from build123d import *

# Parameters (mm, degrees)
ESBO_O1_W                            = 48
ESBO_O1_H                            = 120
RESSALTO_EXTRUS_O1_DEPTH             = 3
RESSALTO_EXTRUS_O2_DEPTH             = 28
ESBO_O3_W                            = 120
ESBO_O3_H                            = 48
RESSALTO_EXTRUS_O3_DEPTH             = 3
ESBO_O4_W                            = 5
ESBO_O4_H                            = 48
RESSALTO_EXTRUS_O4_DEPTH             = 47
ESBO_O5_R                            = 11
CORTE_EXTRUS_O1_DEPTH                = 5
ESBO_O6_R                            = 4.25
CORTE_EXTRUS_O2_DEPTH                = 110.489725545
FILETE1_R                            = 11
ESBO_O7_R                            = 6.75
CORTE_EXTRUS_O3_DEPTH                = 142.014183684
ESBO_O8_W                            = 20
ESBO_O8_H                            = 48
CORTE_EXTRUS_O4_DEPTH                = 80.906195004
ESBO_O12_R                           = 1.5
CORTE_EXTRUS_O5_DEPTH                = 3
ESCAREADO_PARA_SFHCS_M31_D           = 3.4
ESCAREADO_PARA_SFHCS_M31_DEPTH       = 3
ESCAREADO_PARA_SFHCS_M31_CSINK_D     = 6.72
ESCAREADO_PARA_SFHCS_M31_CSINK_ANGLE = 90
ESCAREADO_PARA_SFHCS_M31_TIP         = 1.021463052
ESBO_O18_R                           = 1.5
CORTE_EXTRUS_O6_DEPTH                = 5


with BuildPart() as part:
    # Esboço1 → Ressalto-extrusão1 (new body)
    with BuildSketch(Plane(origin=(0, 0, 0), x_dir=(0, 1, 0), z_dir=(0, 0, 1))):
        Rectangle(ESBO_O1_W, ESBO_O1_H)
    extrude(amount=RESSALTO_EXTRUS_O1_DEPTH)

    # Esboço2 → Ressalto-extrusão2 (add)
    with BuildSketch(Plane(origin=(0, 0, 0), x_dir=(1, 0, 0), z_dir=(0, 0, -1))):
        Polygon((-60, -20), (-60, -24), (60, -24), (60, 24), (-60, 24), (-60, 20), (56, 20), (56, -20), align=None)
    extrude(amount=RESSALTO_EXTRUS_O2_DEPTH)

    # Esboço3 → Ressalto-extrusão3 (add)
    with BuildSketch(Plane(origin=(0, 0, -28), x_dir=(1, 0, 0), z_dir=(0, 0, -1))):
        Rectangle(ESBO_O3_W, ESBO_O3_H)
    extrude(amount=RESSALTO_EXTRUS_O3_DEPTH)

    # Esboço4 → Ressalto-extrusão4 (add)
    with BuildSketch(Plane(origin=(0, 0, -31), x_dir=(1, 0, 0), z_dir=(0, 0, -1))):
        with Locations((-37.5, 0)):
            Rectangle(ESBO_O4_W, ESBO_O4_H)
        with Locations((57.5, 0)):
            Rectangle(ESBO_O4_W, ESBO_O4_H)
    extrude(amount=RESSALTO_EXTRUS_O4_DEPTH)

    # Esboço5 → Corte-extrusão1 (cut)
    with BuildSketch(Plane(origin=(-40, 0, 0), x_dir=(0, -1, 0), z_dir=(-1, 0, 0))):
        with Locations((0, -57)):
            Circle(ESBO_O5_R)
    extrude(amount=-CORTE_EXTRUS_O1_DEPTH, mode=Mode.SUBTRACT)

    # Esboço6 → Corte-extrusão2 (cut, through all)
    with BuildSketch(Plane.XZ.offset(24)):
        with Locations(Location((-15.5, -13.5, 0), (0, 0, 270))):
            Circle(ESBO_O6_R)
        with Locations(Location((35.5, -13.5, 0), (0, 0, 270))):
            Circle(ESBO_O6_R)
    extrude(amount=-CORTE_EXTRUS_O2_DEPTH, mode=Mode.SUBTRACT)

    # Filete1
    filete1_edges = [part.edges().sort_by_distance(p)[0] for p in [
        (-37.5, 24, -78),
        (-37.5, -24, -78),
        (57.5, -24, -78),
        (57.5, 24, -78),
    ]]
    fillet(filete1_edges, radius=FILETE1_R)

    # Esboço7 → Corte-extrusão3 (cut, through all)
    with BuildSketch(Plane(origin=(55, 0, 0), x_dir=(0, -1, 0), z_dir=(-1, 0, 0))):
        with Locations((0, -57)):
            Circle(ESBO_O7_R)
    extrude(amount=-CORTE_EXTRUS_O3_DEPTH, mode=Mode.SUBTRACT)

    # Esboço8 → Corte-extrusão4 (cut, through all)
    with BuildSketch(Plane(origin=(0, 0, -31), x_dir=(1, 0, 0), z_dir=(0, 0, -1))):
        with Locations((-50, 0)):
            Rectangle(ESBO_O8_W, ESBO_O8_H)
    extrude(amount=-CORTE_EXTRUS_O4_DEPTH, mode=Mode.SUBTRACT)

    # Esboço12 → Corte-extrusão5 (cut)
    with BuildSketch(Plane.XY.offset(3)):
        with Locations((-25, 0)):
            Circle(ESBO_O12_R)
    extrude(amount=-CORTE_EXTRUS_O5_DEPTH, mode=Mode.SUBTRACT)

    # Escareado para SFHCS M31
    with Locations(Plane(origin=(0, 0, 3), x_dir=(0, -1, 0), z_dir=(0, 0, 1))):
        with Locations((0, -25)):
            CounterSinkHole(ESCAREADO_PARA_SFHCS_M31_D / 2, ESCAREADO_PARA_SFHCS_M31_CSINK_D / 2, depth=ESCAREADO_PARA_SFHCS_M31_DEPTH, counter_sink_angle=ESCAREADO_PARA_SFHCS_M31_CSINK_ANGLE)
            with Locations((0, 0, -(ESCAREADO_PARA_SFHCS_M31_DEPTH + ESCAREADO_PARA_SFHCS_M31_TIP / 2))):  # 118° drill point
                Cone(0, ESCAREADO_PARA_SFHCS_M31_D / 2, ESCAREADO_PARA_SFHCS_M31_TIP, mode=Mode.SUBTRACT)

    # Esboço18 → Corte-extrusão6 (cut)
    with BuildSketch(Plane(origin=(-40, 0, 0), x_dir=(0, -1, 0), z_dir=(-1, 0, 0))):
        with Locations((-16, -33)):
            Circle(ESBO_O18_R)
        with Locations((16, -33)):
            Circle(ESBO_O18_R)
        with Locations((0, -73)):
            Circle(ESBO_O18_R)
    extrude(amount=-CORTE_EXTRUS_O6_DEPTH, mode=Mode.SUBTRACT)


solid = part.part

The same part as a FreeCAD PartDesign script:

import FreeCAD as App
import Part
import Sketcher
Q = App.Units.Quantity


def edges_at(feature, points):
    """Names of the edges that pass closest to the given points."""
    edges = feature.Shape.Edges
    near = lambda p: min(range(len(edges)), key=lambda i: edges[i].distToShape(Part.Vertex(*p))[0])
    return sorted({f"Edge{near(p) + 1}" for p in points})


def add_polygon(sketch, points):
    """Adds a closed chain of lines whose ends are joined by coincident constraints."""
    first, n = sketch.GeometryCount, len(points)
    for a, b in zip(points, points[1:] + points[:1]):
        sketch.addGeometry(Part.LineSegment(App.Vector(*a, 0), App.Vector(*b, 0)), False)
    for i in range(n):
        sketch.addConstraint(Sketcher.Constraint("Coincident", first + i, 2, first + (i + 1) % n, 1))

doc = App.newDocument("Part")
body = doc.addObject("PartDesign::Body", "Body")

sketch1 = body.newObject("Sketcher::SketchObject", "Sketch")
sketch1.AttachmentSupport = (doc.getObject("XY_Plane"), [""])
sketch1.MapMode = "FlatFace"
add_polygon(sketch1, [(-60, -24), (60, -24), (60, 24), (-60, 24)])
sketch1.addConstraint([
    Sketcher.Constraint("Horizontal", 0),
    Sketcher.Constraint("Vertical", 1),
    Sketcher.Constraint("Horizontal", 2),
    Sketcher.Constraint("Vertical", 3),
    Sketcher.Constraint("Symmetric", 0, 2, 2, 2, -1, 1),
    Sketcher.Constraint("DistanceX", 0, 1, 0, 2, Q("120 mm")),
    Sketcher.Constraint("DistanceY", 1, 1, 1, 2, Q("48 mm")),
])
pad1 = body.newObject("PartDesign::Pad", "Pad")
pad1.Profile = sketch1
pad1.Length = 3

sketch2 = body.newObject("Sketcher::SketchObject", "Sketch001")
sketch2.AttachmentSupport = (doc.getObject("XY_Plane"), [""])
sketch2.MapMode = "FlatFace"
add_polygon(sketch2, [(-60, 20), (-60, 24), (60, 24), (60, -24), (-60, -24), (-60, -20), (56, -20), (56, 20)])
sketch2.addConstraint([
    Sketcher.Constraint("Vertical", 0),
    Sketcher.Constraint("Horizontal", 1),
    Sketcher.Constraint("Vertical", 2),
    Sketcher.Constraint("Horizontal", 3),
    Sketcher.Constraint("Vertical", 4),
    Sketcher.Constraint("Horizontal", 5),
    Sketcher.Constraint("Vertical", 6),
    Sketcher.Constraint("Horizontal", 7),
    Sketcher.Constraint("Symmetric", 0, 2, 2, 2, -1, 1),
    Sketcher.Constraint("Symmetric", 4, 2, 7, 2, -1),
    Sketcher.Constraint("DistanceX", 1, 1, 1, 2, Q("120 mm")),
    Sketcher.Constraint("DistanceX", 5, 1, 5, 2, Q("116 mm")),
    Sketcher.Constraint("DistanceY", 0, 1, 0, 2, Q("4 mm")),
    Sketcher.Constraint("DistanceY", 2, 2, 2, 1, Q("48 mm")),
])
pad2 = body.newObject("PartDesign::Pad", "Pad001")
pad2.Profile = sketch2
pad2.Length = 28
pad2.Reversed = True

sketch3 = body.newObject("Sketcher::SketchObject", "Sketch002")
sketch3.AttachmentSupport = (doc.getObject("XY_Plane"), [""])
sketch3.MapMode = "FlatFace"
sketch3.AttachmentOffset = App.Placement(App.Vector(0, 0, -28), App.Rotation())
add_polygon(sketch3, [(-60, -24), (-60, 24), (60, 24), (60, -24)])
sketch3.addConstraint([
    Sketcher.Constraint("Vertical", 0),
    Sketcher.Constraint("Horizontal", 1),
    Sketcher.Constraint("Vertical", 2),
    Sketcher.Constraint("Horizontal", 3),
    Sketcher.Constraint("Symmetric", 0, 2, 2, 2, -1, 1),
    Sketcher.Constraint("DistanceX", 1, 1, 1, 2, Q("120 mm")),
    Sketcher.Constraint("DistanceY", 0, 1, 0, 2, Q("48 mm")),
])
pad3 = body.newObject("PartDesign::Pad", "Pad002")
pad3.Profile = sketch3
pad3.Length = 3
pad3.Reversed = True

sketch4 = body.newObject("Sketcher::SketchObject", "Sketch003")
sketch4.AttachmentSupport = (doc.getObject("XY_Plane"), [""])
sketch4.MapMode = "FlatFace"
sketch4.AttachmentOffset = App.Placement(App.Vector(0, 0, -31), App.Rotation())
add_polygon(sketch4, [(-40, -24), (-40, 24), (-35, 24), (-35, -24)])
add_polygon(sketch4, [(55, -24), (55, 24), (60, 24), (60, -24)])
sketch4.addConstraint([
    Sketcher.Constraint("Vertical", 0),
    Sketcher.Constraint("Horizontal", 1),
    Sketcher.Constraint("Vertical", 2),
    Sketcher.Constraint("Horizontal", 3),
    Sketcher.Constraint("Vertical", 4),
    Sketcher.Constraint("Horizontal", 5),
    Sketcher.Constraint("Vertical", 6),
    Sketcher.Constraint("Horizontal", 7),
    Sketcher.Constraint("Horizontal", 1, 2, 4, 2),
    Sketcher.Constraint("Horizontal", 3, 2, 6, 2),
    Sketcher.Constraint("Equal", 3, 5),
    Sketcher.Constraint("DistanceX", 1, 1, 1, 2, Q("5 mm")),
    Sketcher.Constraint("DistanceY", 0, 1, 0, 2, Q("48 mm")),
    Sketcher.Constraint("DistanceX", 0, 2, -1, 1, Q("40 mm")),
    Sketcher.Constraint("DistanceY", -1, 1, 0, 2, Q("24 mm")),
    Sketcher.Constraint("DistanceX", -1, 1, 4, 2, Q("55 mm")),
])
pad4 = body.newObject("PartDesign::Pad", "Pad003")
pad4.Profile = sketch4
pad4.Length = 47
pad4.Reversed = True

sketch5 = body.newObject("Sketcher::SketchObject", "Sketch004")
sketch5.AttachmentSupport = (doc.getObject("YZ_Plane"), [""])
sketch5.MapMode = "FlatFace"
sketch5.AttachmentOffset = App.Placement(App.Vector(0, 0, -40), App.Rotation())
sketch5.addGeometry(Part.Circle(App.Vector(0, -57, 0), App.Vector(0, 0, 1), 11), False)
sketch5.addConstraint([
    Sketcher.Constraint("PointOnObject", 0, 3, -2),
    Sketcher.Constraint("Diameter", 0, Q("22 mm")),
    Sketcher.Constraint("DistanceY", 0, 3, -1, 1, Q("57 mm")),
])
pocket1 = body.newObject("PartDesign::Pocket", "Pocket")
pocket1.Profile = sketch5
pocket1.Length = 5
pocket1.Reversed = True

sketch6 = body.newObject("Sketcher::SketchObject", "Sketch005")
sketch6.AttachmentSupport = (doc.getObject("XZ_Plane"), [""])
sketch6.MapMode = "FlatFace"
sketch6.AttachmentOffset = App.Placement(App.Vector(0, 0, 24), App.Rotation())
sketch6.addGeometry([
    Part.Circle(App.Vector(-15.5, -13.5, 0), App.Vector(0, 0, 1), 4.2),
    Part.Circle(App.Vector(35.5, -13.5, 0), App.Vector(0, 0, 1), 4.2),
], False)
sketch6.addConstraint([
    Sketcher.Constraint("Equal", 0, 1),
    Sketcher.Constraint("Horizontal", 0, 3, 1, 3),
    Sketcher.Constraint("Diameter", 0, Q("8.5 mm")),
    Sketcher.Constraint("DistanceX", 0, 3, 1, 3, Q("51 mm")),
    Sketcher.Constraint("DistanceX", 0, 3, -1, 1, Q("15.5 mm")),
    Sketcher.Constraint("DistanceY", 0, 3, -1, 1, Q("13.5 mm")),
])
pocket2 = body.newObject("PartDesign::Pocket", "Pocket001")
pocket2.Profile = sketch6
pocket2.Type = "ThroughAll"
doc.recompute()

fillet = body.newObject("PartDesign::Fillet", "Fillet")
fillet.Base = (pocket2, edges_at(pocket2, [
    (-37.5, 24, -78),
    (-37.5, -24, -78),
    (57.5, -24, -78),
    (57.5, 24, -78),
]))
fillet.Radius = 11

sketch7 = body.newObject("Sketcher::SketchObject", "Sketch006")
sketch7.AttachmentSupport = (doc.getObject("YZ_Plane"), [""])
sketch7.MapMode = "FlatFace"
sketch7.AttachmentOffset = App.Placement(App.Vector(0, 0, 55), App.Rotation())
sketch7.addGeometry(Part.Circle(App.Vector(0, -57, 0), App.Vector(0, 0, 1), 7), False)
sketch7.addConstraint([
    Sketcher.Constraint("PointOnObject", 0, 3, -2),
    Sketcher.Constraint("Diameter", 0, Q("13.5 mm")),
    Sketcher.Constraint("DistanceY", 0, 3, -1, 1, Q("57 mm")),
])
pocket3 = body.newObject("PartDesign::Pocket", "Pocket002")
pocket3.Profile = sketch7
pocket3.Type = "ThroughAll"
pocket3.Reversed = True

sketch8 = body.newObject("Sketcher::SketchObject", "Sketch007")
sketch8.AttachmentSupport = (doc.getObject("XY_Plane"), [""])
sketch8.MapMode = "FlatFace"
sketch8.AttachmentOffset = App.Placement(App.Vector(0, 0, -31), App.Rotation())
add_polygon(sketch8, [(-60, -24), (-60, 24), (-40, 24), (-40, -24)])
sketch8.addConstraint([
    Sketcher.Constraint("Vertical", 0),
    Sketcher.Constraint("Horizontal", 1),
    Sketcher.Constraint("Vertical", 2),
    Sketcher.Constraint("Horizontal", 3),
    Sketcher.Constraint("DistanceX", 1, 1, 1, 2, Q("20 mm")),
    Sketcher.Constraint("DistanceY", 0, 1, 0, 2, Q("48 mm")),
    Sketcher.Constraint("DistanceX", 0, 2, -1, 1, Q("60 mm")),
    Sketcher.Constraint("DistanceY", -1, 1, 0, 2, Q("24 mm")),
])
pocket4 = body.newObject("PartDesign::Pocket", "Pocket003")
pocket4.Profile = sketch8
pocket4.Type = "ThroughAll"
pocket4.Reversed = True

sketch9 = body.newObject("Sketcher::SketchObject", "Sketch008")
sketch9.AttachmentSupport = (doc.getObject("XY_Plane"), [""])
sketch9.MapMode = "FlatFace"
sketch9.AttachmentOffset = App.Placement(App.Vector(0, 0, 3), App.Rotation())
sketch9.addGeometry(Part.Circle(App.Vector(-25, 0, 0), App.Vector(0, 0, 1), 1.5), False)
sketch9.addConstraint([
    Sketcher.Constraint("PointOnObject", 0, 3, -1),
    Sketcher.Constraint("Diameter", 0, Q("3 mm")),
    Sketcher.Constraint("DistanceX", 0, 3, -1, 1, Q("25 mm")),
])
pocket5 = body.newObject("PartDesign::Pocket", "Pocket004")
pocket5.Profile = sketch9
pocket5.Length = 3

sketch10 = body.newObject("Sketcher::SketchObject", "Sketch009")
sketch10.AttachmentSupport = (doc.getObject("XY_Plane"), [""])
sketch10.MapMode = "FlatFace"
sketch10.AttachmentOffset = App.Placement(App.Vector(0, 0, 3), App.Rotation())
sketch10.addGeometry(Part.Circle(App.Vector(-25, 0, 0), App.Vector(0, 0, 1), 1.7), False)
sketch10.addConstraint([
    Sketcher.Constraint("PointOnObject", 0, 3, -1),
    Sketcher.Constraint("Diameter", 0, Q("3.4 mm")),
    Sketcher.Constraint("DistanceX", 0, 3, -1, 1, Q("25 mm")),
])
doc.recompute()
hole = body.newObject("PartDesign::Hole", "Hole")
hole.Profile = sketch10
hole.ThreadType = "None"
hole.Diameter = 3.4
hole.DepthType = "Dimension"
hole.Depth = 3
hole.DrillPoint = "Angled"
hole.DrillPointAngle = 118
hole.HoleCutType = "Countersink"
hole.HoleCutDiameter = 6.72
hole.HoleCutCountersinkAngle = 90

sketch11 = body.newObject("Sketcher::SketchObject", "Sketch010")
sketch11.AttachmentSupport = (doc.getObject("YZ_Plane"), [""])
sketch11.MapMode = "FlatFace"
sketch11.AttachmentOffset = App.Placement(App.Vector(0, 0, -40), App.Rotation())
sketch11.addGeometry([
    Part.Circle(App.Vector(16, -33, 0), App.Vector(0, 0, 1), 1.5),
    Part.Circle(App.Vector(-16, -33, 0), App.Vector(0, 0, 1), 1.5),
    Part.Circle(App.Vector(0, -73, 0), App.Vector(0, 0, 1), 1.5),
], False)
sketch11.addConstraint([
    Sketcher.Constraint("Equal", 0, 1),
    Sketcher.Constraint("Equal", 1, 2),
    Sketcher.Constraint("Symmetric", 0, 3, 1, 3, -2),
    Sketcher.Constraint("PointOnObject", 2, 3, -2),
    Sketcher.Constraint("Diameter", 0, Q("3 mm")),
    Sketcher.Constraint("DistanceX", -1, 1, 0, 3, Q("16 mm")),
    Sketcher.Constraint("DistanceY", 0, 3, -1, 1, Q("33 mm")),
    Sketcher.Constraint("DistanceY", 2, 3, -1, 1, Q("73 mm")),
])
pocket6 = body.newObject("PartDesign::Pocket", "Pocket005")
pocket6.Profile = sketch11
pocket6.Length = 5
pocket6.Reversed = True

doc.recompute()
